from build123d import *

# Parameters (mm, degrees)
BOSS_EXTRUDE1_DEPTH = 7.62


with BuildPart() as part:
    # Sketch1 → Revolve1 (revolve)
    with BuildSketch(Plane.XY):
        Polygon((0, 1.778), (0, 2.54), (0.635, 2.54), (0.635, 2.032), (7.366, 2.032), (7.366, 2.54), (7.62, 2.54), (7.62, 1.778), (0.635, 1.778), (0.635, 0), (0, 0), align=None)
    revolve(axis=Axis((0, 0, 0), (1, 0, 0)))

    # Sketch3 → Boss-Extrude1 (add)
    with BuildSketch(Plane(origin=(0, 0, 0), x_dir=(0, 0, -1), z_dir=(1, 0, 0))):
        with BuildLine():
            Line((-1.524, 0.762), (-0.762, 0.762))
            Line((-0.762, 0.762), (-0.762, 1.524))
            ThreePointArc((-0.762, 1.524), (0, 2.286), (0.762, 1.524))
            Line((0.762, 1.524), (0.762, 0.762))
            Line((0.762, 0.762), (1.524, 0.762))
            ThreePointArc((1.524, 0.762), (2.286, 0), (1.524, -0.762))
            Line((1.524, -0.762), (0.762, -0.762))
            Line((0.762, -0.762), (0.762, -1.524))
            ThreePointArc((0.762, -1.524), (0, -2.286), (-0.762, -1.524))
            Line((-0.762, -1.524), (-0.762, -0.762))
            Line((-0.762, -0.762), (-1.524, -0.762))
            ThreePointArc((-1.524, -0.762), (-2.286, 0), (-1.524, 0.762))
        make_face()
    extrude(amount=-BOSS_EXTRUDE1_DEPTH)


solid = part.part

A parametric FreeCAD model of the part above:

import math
import FreeCAD as App
import Part
import Sketcher
from FreeCAD import Vector
Q = App.Units.Quantity


def add_polygon(sketch, points):
    """Adds a closed chain of lines whose ends are joined by coincident constraints."""
    first, n = sketch.GeometryCount, len(points)
    for a, b in zip(points, points[1:] + points[:1]):
        sketch.addGeometry(Part.LineSegment(App.Vector(*a, 0), App.Vector(*b, 0)), False)
    for i in range(n):
        sketch.addConstraint(Sketcher.Constraint("Coincident", first + i, 2, first + (i + 1) % n, 1))

doc = App.newDocument("Part")
params = doc.addObject("Spreadsheet::Sheet", "Params")
for row, (alias, value) in enumerate([
    ("sketch1_height", "0.1 in"),
    ("sketch1_width", "0.01 in"),
    ("sketch1_height2", "0.07 in"),
    ("sketch1_height3", "0.02 in"),
    ("sketch1_width2", "0.025 in"),
    ("revolution_angle", "360 deg"),
    ("sketch2_radius", "0.03 in"),
    ("sketch2_width", "0.03 in"),
    ("pad1_length", "0.3 in"),
], start=1):
    params.set(f"A{row}", alias)
    params.set(f"B{row}", "=" + value)
    params.setAlias(f"B{row}", alias)

body = doc.addObject("PartDesign::Body", "Body")

# Sketch on XY plane
sketch1 = doc.addObject("Sketcher::SketchObject", "Sketch")
body.addObject(sketch1)
sketch1.AttachmentSupport = (doc.XY_Plane, [""])
sketch1.MapMode = "FlatFace"
add_polygon(sketch1, [(0, 2.54), (0, 0), (0.64, 0), (0.64, 1.78), (7.62, 1.78), (7.62, 2.54), (7.37, 2.54), (7.37, 2.03), (0.64, 2.03), (0.64, 2.54)])  # lines 0-9
sketch1.addConstraint([
    Sketcher.Constraint("Vertical", 0),
    Sketcher.Constraint("Horizontal", 1),
    Sketcher.Constraint("Vertical", 2),
    Sketcher.Constraint("Horizontal", 3),
    Sketcher.Constraint("Vertical", 4),
    Sketcher.Constraint("Horizontal", 5),
    Sketcher.Constraint("Vertical", 6),
    Sketcher.Constraint("Horizontal", 7),
    Sketcher.Constraint("Vertical", 8),
    Sketcher.Constraint("Horizontal", 9),
    Sketcher.Constraint("Coincident", 0, 2, -1, 1),
    Sketcher.Constraint("Horizontal", 5, 2, 8, 2),
    Sketcher.Constraint("Vertical", 2, 2, 7, 2),
    Sketcher.Constraint("DistanceY", 0, 2, 0, 1, Q("0.1 in")),
    Sketcher.Constraint("DistanceX", 5, 2, 5, 1, Q("0.01 in")),
    Sketcher.Constraint("DistanceY", 2, 1, 2, 2, Q("0.07 in")),
    Sketcher.Constraint("DistanceY", 6, 2, 6, 1, Q("0.02 in")),
    Sketcher.Constraint("DistanceX", -1, 1, 3, 2, Q("0.3 in")),
    Sketcher.Constraint("DistanceX", 1, 1, 1, 2, Q("0.025 in")),
])
sketch1.setExpression("Constraints[23]", "Params.sketch1_height")
sketch1.setExpression("Constraints[24]", "Params.sketch1_width")
sketch1.setExpression("Constraints[25]", "Params.sketch1_height2")
sketch1.setExpression("Constraints[26]", "Params.sketch1_height3")
sketch1.setExpression("Constraints[28]", "Params.sketch1_width2")
revolution = doc.addObject("PartDesign::Revolution", "Revolution")
body.addObject(revolution)
revolution.Profile = sketch1
revolution.ReferenceAxis = (sketch1, ["H_Axis"])
revolution.setExpression("Angle", "Params.revolution_angle")

# Sketch on YZ plane
sketch2 = doc.addObject("Sketcher::SketchObject", "Sketch001")
body.addObject(sketch2)
sketch2.AttachmentSupport = (doc.YZ_Plane, [""])
sketch2.MapMode = "FlatFace"
sketch2.addGeometry([
    Part.LineSegment(Vector(0.8, 0.8, 0), Vector(0.8, 1.5, 0)),  # 0
    Part.ArcOfCircle(Part.Circle(Vector(0, 1.5, 0), Vector(0, 0, 1), 0.8), math.radians(0), math.radians(180)),  # 1
    Part.LineSegment(Vector(-0.8, 1.5, 0), Vector(-0.8, 0.8, 0)),  # 2
    Part.LineSegment(Vector(-0.8, 0.8, 0), Vector(-1.5, 0.8, 0)),  # 3
    Part.ArcOfCircle(Part.Circle(Vector(-1.5, 0, 0), Vector(0, 0, 1), 0.8), math.radians(90), math.radians(270)),  # 4
    Part.LineSegment(Vector(-1.5, -0.8, 0), Vector(-0.8, -0.8, 0)),  # 5
    Part.LineSegment(Vector(-0.8, -0.8, 0), Vector(-0.8, -1.5, 0)),  # 6
    Part.ArcOfCircle(Part.Circle(Vector(0, -1.5, 0), Vector(0, 0, 1), 0.8), math.radians(180), math.radians(360)),  # 7
    Part.LineSegment(Vector(0.8, -1.5, 0), Vector(0.8, -0.8, 0)),  # 8
    Part.LineSegment(Vector(0.8, -0.8, 0), Vector(1.5, -0.8, 0)),  # 9
    Part.ArcOfCircle(Part.Circle(Vector(1.5, 0, 0), Vector(0, 0, 1), 0.8), math.radians(-90), math.radians(90)),  # 10
    Part.LineSegment(Vector(1.5, 0.8, 0), Vector(0.8, 0.8, 0)),  # 11
], False)
sketch2.addConstraint([
    Sketcher.Constraint("Tangent", 0, 2, 1, 1),
    Sketcher.Constraint("Tangent", 1, 2, 2, 1),
    Sketcher.Constraint("Coincident", 2, 2, 3, 1),
    Sketcher.Constraint("Tangent", 3, 2, 4, 1),
    Sketcher.Constraint("Tangent", 4, 2, 5, 1),
    Sketcher.Constraint("Coincident", 5, 2, 6, 1),
    Sketcher.Constraint("Tangent", 6, 2, 7, 1),
    Sketcher.Constraint("Tangent", 7, 2, 8, 1),
    Sketcher.Constraint("Coincident", 8, 2, 9, 1),
    Sketcher.Constraint("Tangent", 9, 2, 10, 1),
    Sketcher.Constraint("Tangent", 10, 2, 11, 1),
    Sketcher.Constraint("Coincident", 11, 2, 0, 1),
    Sketcher.Constraint("Vertical", 0),
    Sketcher.Constraint("Vertical", 2),
    Sketcher.Constraint("Horizontal", 3),
    Sketcher.Constraint("Horizontal", 5),
    Sketcher.Constraint("Vertical", 6),
    Sketcher.Constraint("Vertical", 8),
    Sketcher.Constraint("Horizontal", 9),
    Sketcher.Constraint("Horizontal", 11),
    Sketcher.Constraint("Equal", 1, 4),
    Sketcher.Constraint("Equal", 4, 7),
    Sketcher.Constraint("Equal", 7, 10),
    Sketcher.Constraint("Symmetric", 1, 3, 7, 3, -1, 1),
    Sketcher.Constraint("Symmetric", 4, 3, 10, 3, -1, 1),
    Sketcher.Constraint("Symmetric", 5, 2, 8, 2, -2),
    Sketcher.Constraint("Equal", 11, 0),
    Sketcher.Constraint("Radius", 1, Q("0.03 in")),
    Sketcher.Constraint("DistanceX", 3, 2, 3, 1, Q("0.03 in")),
])
sketch2.setExpression("Constraints[27]", "Params.sketch2_radius")
sketch2.setExpression("Constraints[28]", "Params.sketch2_width")
pad1 = doc.addObject("PartDesign::Pad", "Pad")
body.addObject(pad1)
pad1.Profile = sketch2
pad1.setExpression("Length", "Params.pad1_length")
pad1.Reversed = True

doc.recompute()
